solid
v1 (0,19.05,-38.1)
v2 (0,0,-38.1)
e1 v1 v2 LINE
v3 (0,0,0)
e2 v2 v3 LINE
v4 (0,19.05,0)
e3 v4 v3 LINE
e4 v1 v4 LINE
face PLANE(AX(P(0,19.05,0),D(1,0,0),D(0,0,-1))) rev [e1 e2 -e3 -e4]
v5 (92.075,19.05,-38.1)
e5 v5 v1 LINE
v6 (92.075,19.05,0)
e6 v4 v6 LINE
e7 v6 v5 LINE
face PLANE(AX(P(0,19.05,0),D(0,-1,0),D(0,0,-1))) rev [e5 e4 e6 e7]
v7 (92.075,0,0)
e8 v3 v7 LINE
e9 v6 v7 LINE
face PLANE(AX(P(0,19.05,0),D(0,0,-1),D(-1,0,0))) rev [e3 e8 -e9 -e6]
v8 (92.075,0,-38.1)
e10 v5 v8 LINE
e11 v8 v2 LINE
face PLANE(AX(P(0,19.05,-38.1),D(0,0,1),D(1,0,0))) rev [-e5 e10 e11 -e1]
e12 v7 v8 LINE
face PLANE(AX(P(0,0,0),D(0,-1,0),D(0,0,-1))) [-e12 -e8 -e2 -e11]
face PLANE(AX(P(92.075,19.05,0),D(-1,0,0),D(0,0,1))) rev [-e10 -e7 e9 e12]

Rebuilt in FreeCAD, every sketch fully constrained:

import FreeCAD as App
import Part
import Sketcher

V = App.Vector
Q = App.Units.Quantity


def add_polygon(sketch, points):
    """Adds a closed chain of lines whose ends are joined by coincident constraints."""
    first, n = sketch.GeometryCount, len(points)
    for a, b in zip(points, points[1:] + points[:1]):
        sketch.addGeometry(Part.LineSegment(App.Vector(*a, 0), App.Vector(*b, 0)), False)
    for i in range(n):
        sketch.addConstraint(Sketcher.Constraint("Coincident", first + i, 2, first + (i + 1) % n, 1))

doc = App.newDocument("Part")
body = doc.addObject("PartDesign::Body", "Body")

# Sketch on XZ plane
sketch1 = doc.addObject("Sketcher::SketchObject", "Sketch")
body.addObject(sketch1)
sketch1.AttachmentSupport = (doc.XZ_Plane, [""])
sketch1.MapMode = "FlatFace"
add_polygon(sketch1, [(0, -38), (0, 0), (92, 0), (92, -38)])  # lines 0-3
sketch1.addConstraint(Sketcher.Constraint("Vertical", 0))
sketch1.addConstraint(Sketcher.Constraint("Horizontal", 1))
sketch1.addConstraint(Sketcher.Constraint("Vertical", 2))
sketch1.addConstraint(Sketcher.Constraint("Horizontal", 3))
sketch1.addConstraint(Sketcher.Constraint("Coincident", 0, 2, -1, 1))
sketch1.addConstraint(Sketcher.Constraint("DistanceY", 0, 1, 0, 2, Q("1.5 in")))
sketch1.addConstraint(Sketcher.Constraint("DistanceX", 1, 1, 1, 2, Q("3.625 in")))
pad1 = doc.addObject("PartDesign::Pad", "Pad")
body.addObject(pad1)
pad1.Profile = sketch1
pad1.Length = Q("0.75 in")
pad1.Reversed = True

doc.recompute()
